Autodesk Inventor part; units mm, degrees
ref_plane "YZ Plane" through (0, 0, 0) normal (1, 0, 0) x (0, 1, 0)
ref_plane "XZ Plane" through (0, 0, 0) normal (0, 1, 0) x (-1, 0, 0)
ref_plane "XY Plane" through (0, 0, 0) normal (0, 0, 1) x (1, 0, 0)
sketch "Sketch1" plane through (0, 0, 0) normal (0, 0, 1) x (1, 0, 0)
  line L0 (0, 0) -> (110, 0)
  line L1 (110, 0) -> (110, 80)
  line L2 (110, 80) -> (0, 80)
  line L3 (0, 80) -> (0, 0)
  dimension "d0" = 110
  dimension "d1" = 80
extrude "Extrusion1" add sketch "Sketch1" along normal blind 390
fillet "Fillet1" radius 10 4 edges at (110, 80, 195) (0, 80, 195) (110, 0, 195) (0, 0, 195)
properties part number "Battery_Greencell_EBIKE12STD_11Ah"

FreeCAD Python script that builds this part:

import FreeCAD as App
import Part
import Sketcher
from FreeCAD import Vector
Q = App.Units.Quantity


def edges_at(feature, points):
    """Names of the edges that pass closest to the given points."""
    edges = feature.Shape.Edges
    near = lambda p: min(range(len(edges)), key=lambda i: edges[i].distToShape(Part.Vertex(*p))[0])
    return sorted({f"Edge{near(p) + 1}" for p in points})

doc = App.newDocument("Part")
body = doc.addObject("PartDesign::Body", "Body")

# Sketch on XY plane
sketch1 = body.newObject("Sketcher::SketchObject", "Sketch")
sketch1.AttachmentSupport = (doc.getObject("XY_Plane"), [""])
sketch1.MapMode = "FlatFace"
sketch1.addGeometry(Part.LineSegment(Vector(0, 80, 0), Vector(0, 0, 0)), False)
sketch1.addGeometry(Part.LineSegment(Vector(0, 0, 0), Vector(110, 0, 0)), False)
sketch1.addGeometry(Part.LineSegment(Vector(110, 0, 0), Vector(110, 80, 0)), False)
sketch1.addGeometry(Part.LineSegment(Vector(110, 80, 0), Vector(0, 80, 0)), False)
sketch1.addConstraint(Sketcher.Constraint("Coincident", 0, 2, 1, 1))
sketch1.addConstraint(Sketcher.Constraint("Coincident", 1, 2, 2, 1))
sketch1.addConstraint(Sketcher.Constraint("Coincident", 2, 2, 3, 1))
sketch1.addConstraint(Sketcher.Constraint("Coincident", 3, 2, 0, 1))
sketch1.addConstraint(Sketcher.Constraint("Vertical", 0))
sketch1.addConstraint(Sketcher.Constraint("Horizontal", 1))
sketch1.addConstraint(Sketcher.Constraint("Vertical", 2))
sketch1.addConstraint(Sketcher.Constraint("Horizontal", 3))
sketch1.addConstraint(Sketcher.Constraint("Coincident", 0, 2, -1, 1))
sketch1.addConstraint(Sketcher.Constraint("DistanceX", 1, 1, 1, 2, Q("110 mm")))
sketch1.addConstraint(Sketcher.Constraint("DistanceY", 0, 2, 0, 1, Q("80 mm")))
pad1 = body.newObject("PartDesign::Pad", "Pad")
pad1.Profile = sketch1
pad1.Length = 390
doc.recompute()

fillet = body.newObject("PartDesign::Fillet", "Fillet")
fillet.Base = (pad1, edges_at(pad1, [
    (110, 80, 195),
    (0, 80, 195),
    (110, 0, 195),
    (0, 0, 195),
]))
fillet.Radius = 10

doc.recompute()
